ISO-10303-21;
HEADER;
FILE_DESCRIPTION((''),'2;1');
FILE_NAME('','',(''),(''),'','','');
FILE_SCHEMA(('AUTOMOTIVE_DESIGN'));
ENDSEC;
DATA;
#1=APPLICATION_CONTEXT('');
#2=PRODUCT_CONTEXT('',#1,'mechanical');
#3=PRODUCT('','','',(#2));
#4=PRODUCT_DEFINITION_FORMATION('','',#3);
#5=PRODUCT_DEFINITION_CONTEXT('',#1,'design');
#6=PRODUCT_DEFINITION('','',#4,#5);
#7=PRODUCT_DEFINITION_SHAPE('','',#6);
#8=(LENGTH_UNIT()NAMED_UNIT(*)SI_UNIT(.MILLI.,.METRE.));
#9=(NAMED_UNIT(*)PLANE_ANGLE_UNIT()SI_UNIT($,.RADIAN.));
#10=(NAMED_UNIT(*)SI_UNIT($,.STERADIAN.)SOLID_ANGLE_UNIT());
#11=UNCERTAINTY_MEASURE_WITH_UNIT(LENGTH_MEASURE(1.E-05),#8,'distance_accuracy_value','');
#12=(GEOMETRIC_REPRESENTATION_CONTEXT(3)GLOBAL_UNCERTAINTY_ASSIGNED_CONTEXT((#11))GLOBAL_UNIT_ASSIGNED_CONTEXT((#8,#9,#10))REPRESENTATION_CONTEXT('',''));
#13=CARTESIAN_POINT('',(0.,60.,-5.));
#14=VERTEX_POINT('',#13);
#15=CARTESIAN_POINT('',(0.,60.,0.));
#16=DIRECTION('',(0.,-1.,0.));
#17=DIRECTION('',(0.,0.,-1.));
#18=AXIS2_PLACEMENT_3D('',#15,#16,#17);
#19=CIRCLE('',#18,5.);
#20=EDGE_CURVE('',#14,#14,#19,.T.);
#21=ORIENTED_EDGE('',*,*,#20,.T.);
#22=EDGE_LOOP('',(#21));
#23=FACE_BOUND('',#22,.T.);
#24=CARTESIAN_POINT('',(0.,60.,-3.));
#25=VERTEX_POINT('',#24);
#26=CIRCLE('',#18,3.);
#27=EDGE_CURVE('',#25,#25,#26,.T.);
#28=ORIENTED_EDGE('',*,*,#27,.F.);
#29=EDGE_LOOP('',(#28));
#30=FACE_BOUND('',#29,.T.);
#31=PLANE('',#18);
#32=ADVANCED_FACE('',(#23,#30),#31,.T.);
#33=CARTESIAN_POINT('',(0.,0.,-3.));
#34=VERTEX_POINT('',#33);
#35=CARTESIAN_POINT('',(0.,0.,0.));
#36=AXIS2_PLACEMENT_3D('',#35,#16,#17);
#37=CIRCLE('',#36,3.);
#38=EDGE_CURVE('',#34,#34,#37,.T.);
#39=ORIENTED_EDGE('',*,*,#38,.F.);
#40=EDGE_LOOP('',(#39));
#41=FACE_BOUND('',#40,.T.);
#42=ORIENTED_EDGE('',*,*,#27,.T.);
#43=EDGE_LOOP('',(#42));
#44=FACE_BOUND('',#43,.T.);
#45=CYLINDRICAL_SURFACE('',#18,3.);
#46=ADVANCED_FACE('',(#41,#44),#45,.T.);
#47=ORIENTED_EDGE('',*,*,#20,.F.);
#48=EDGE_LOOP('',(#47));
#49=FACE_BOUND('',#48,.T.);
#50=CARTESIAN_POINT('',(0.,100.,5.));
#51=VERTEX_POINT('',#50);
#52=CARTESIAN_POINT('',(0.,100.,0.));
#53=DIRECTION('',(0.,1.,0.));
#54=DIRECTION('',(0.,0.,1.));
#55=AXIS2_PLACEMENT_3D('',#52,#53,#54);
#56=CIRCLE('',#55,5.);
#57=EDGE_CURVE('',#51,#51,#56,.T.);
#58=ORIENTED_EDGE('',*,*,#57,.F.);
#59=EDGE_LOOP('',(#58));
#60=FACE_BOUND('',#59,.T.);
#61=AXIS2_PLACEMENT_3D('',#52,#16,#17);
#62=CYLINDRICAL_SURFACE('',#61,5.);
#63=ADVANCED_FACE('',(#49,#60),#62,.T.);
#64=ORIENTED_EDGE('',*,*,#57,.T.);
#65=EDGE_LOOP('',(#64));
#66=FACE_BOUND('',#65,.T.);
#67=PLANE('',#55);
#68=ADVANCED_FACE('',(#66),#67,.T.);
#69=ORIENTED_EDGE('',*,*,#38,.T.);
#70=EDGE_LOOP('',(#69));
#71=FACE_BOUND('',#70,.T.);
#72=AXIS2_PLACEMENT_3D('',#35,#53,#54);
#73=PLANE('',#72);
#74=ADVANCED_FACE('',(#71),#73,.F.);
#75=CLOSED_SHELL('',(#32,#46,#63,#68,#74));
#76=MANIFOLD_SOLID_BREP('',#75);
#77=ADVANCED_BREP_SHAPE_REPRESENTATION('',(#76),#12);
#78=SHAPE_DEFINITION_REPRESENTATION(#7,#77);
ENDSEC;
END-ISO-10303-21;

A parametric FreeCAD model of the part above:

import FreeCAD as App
import Part
import Sketcher
from FreeCAD import Vector
Q = App.Units.Quantity

doc = App.newDocument("Part")
params = doc.addObject("Spreadsheet::Sheet", "Params")
for row, (alias, value) in enumerate([
    ("sketch1_diameter", "10 mm"),
    ("pad1_length", "100 mm"),
    ("sketch2_diameter", "10 mm"),
    ("sketch2_diameter2", "6 mm"),
    ("pocket1_length", "60 mm"),
], start=1):
    params.set(f"A{row}", alias)
    params.set(f"B{row}", "=" + value)
    params.setAlias(f"B{row}", alias)

body = doc.addObject("PartDesign::Body", "Body")

# Sketch on XZ plane
sketch1 = body.newObject("Sketcher::SketchObject", "Sketch")
sketch1.AttachmentSupport = (doc.getObject("XZ_Plane"), [""])
sketch1.MapMode = "FlatFace"
sketch1.addGeometry(Part.Circle(Vector(0, 0, 0), Vector(0, 0, 1), 5), False)
sketch1.addConstraint(Sketcher.Constraint("Coincident", 0, 3, -1, 1))
sketch1.addConstraint(Sketcher.Constraint("Diameter", 0, Q("10 mm")))
sketch1.setExpression("Constraints[1]", "Params.sketch1_diameter")
pad1 = body.newObject("PartDesign::Pad", "Pad")
pad1.Profile = sketch1
pad1.setExpression("Length", "Params.pad1_length")
pad1.Reversed = True

# Sketch on XZ plane
sketch2 = body.newObject("Sketcher::SketchObject", "Sketch001")
sketch2.AttachmentSupport = (doc.getObject("XZ_Plane"), [""])
sketch2.MapMode = "FlatFace"
sketch2.addGeometry(Part.Circle(Vector(0, 0, 0), Vector(0, 0, 1), 5), False)
sketch2.addGeometry(Part.Circle(Vector(0, 0, 0), Vector(0, 0, 1), 3), False)
sketch2.addConstraint(Sketcher.Constraint("Coincident", 0, 3, -1, 1))
sketch2.addConstraint(Sketcher.Constraint("Coincident", 1, 3, -1, 1))
sketch2.addConstraint(Sketcher.Constraint("Diameter", 0, Q("10 mm")))
sketch2.addConstraint(Sketcher.Constraint("Diameter", 1, Q("6 mm")))
sketch2.setExpression("Constraints[2]", "Params.sketch2_diameter")
sketch2.setExpression("Constraints[3]", "Params.sketch2_diameter2")
pocket1 = body.newObject("PartDesign::Pocket", "Pocket")
pocket1.Profile = sketch2
pocket1.setExpression("Length", "Params.pocket1_length")

doc.recompute()
